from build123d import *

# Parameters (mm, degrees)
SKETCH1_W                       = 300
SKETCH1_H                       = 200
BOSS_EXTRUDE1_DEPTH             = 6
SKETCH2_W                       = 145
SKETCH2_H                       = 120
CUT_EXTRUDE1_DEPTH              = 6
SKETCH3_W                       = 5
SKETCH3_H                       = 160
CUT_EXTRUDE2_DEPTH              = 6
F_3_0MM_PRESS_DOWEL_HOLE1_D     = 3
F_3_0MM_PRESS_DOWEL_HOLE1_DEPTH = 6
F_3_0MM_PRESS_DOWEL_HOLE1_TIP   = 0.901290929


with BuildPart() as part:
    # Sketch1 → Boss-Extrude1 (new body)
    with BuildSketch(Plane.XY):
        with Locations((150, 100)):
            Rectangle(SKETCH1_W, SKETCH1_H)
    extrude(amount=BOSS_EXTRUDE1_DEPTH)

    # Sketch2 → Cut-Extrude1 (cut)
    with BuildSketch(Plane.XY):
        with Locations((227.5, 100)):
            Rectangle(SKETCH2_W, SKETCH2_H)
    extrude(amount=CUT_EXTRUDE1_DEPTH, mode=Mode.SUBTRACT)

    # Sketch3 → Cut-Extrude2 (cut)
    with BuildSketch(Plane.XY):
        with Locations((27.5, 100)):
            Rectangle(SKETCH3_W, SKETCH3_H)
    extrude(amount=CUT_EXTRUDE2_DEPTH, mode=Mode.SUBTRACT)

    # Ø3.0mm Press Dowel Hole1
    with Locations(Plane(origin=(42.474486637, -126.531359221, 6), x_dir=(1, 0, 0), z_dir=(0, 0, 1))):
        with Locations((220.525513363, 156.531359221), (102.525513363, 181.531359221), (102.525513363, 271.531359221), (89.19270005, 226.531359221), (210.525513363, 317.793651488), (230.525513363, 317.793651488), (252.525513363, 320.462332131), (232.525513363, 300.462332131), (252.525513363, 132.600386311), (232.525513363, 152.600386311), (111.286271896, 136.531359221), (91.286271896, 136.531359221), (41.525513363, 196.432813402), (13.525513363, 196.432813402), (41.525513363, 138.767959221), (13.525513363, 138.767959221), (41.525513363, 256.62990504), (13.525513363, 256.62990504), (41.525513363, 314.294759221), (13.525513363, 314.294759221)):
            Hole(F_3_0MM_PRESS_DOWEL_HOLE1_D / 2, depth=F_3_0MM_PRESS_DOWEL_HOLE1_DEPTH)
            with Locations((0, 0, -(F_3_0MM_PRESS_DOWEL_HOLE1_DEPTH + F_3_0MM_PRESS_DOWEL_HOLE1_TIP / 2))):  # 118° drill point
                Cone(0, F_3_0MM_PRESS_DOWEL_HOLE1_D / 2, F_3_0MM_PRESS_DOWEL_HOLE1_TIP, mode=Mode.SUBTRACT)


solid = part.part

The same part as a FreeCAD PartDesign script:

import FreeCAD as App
import Part
import Sketcher
from FreeCAD import Vector
Q = App.Units.Quantity

doc = App.newDocument("Part")
body = doc.addObject("PartDesign::Body", "Body")

sketch1 = body.newObject("Sketcher::SketchObject", "Sketch")
sketch1.AttachmentSupport = (doc.getObject("XY_Plane"), [""])
sketch1.MapMode = "FlatFace"
sketch1.addGeometry(Part.LineSegment(Vector(0, 200, 0), Vector(0, 0, 0)), False)
sketch1.addGeometry(Part.LineSegment(Vector(0, 0, 0), Vector(300, 0, 0)), False)
sketch1.addGeometry(Part.LineSegment(Vector(300, 0, 0), Vector(300, 200, 0)), False)
sketch1.addGeometry(Part.LineSegment(Vector(300, 200, 0), Vector(0, 200, 0)), False)
sketch1.addConstraint(Sketcher.Constraint("Coincident", 0, 2, 1, 1))
sketch1.addConstraint(Sketcher.Constraint("Coincident", 1, 2, 2, 1))
sketch1.addConstraint(Sketcher.Constraint("Coincident", 2, 2, 3, 1))
sketch1.addConstraint(Sketcher.Constraint("Coincident", 3, 2, 0, 1))
sketch1.addConstraint(Sketcher.Constraint("Vertical", 0))
sketch1.addConstraint(Sketcher.Constraint("Horizontal", 1))
sketch1.addConstraint(Sketcher.Constraint("Vertical", 2))
sketch1.addConstraint(Sketcher.Constraint("Horizontal", 3))
sketch1.addConstraint(Sketcher.Constraint("Coincident", 0, 2, -1, 1))
sketch1.addConstraint(Sketcher.Constraint("DistanceX", 1, 1, 1, 2, Q("300 mm")))
sketch1.addConstraint(Sketcher.Constraint("DistanceY", 0, 2, 0, 1, Q("200 mm")))
pad1 = body.newObject("PartDesign::Pad", "Pad")
pad1.Profile = sketch1
pad1.Length = 6

sketch2 = body.newObject("Sketcher::SketchObject", "Sketch001")
sketch2.AttachmentSupport = (doc.getObject("XY_Plane"), [""])
sketch2.MapMode = "FlatFace"
sketch2.addGeometry(Part.LineSegment(Vector(155, 160, 0), Vector(155, 40, 0)), False)
sketch2.addGeometry(Part.LineSegment(Vector(155, 40, 0), Vector(300, 40, 0)), False)
sketch2.addGeometry(Part.LineSegment(Vector(300, 40, 0), Vector(300, 160, 0)), False)
sketch2.addGeometry(Part.LineSegment(Vector(300, 160, 0), Vector(155, 160, 0)), False)
sketch2.addConstraint(Sketcher.Constraint("Coincident", 0, 2, 1, 1))
sketch2.addConstraint(Sketcher.Constraint("Coincident", 1, 2, 2, 1))
sketch2.addConstraint(Sketcher.Constraint("Coincident", 2, 2, 3, 1))
sketch2.addConstraint(Sketcher.Constraint("Coincident", 3, 2, 0, 1))
sketch2.addConstraint(Sketcher.Constraint("Vertical", 0))
sketch2.addConstraint(Sketcher.Constraint("Horizontal", 1))
sketch2.addConstraint(Sketcher.Constraint("Vertical", 2))
sketch2.addConstraint(Sketcher.Constraint("Horizontal", 3))
sketch2.addConstraint(Sketcher.Constraint("DistanceX", 1, 1, 1, 2, Q("145 mm")))
sketch2.addConstraint(Sketcher.Constraint("DistanceY", 0, 2, 0, 1, Q("120 mm")))
sketch2.addConstraint(Sketcher.Constraint("DistanceX", -1, 1, 0, 2, Q("155 mm")))
sketch2.addConstraint(Sketcher.Constraint("DistanceY", -1, 1, 0, 2, Q("40 mm")))
pocket1 = body.newObject("PartDesign::Pocket", "Pocket")
pocket1.Profile = sketch2
pocket1.Length = 6
pocket1.Reversed = True

sketch3 = body.newObject("Sketcher::SketchObject", "Sketch002")
sketch3.AttachmentSupport = (doc.getObject("XY_Plane"), [""])
sketch3.MapMode = "FlatFace"
sketch3.addGeometry(Part.LineSegment(Vector(25, 180, 0), Vector(25, 20, 0)), False)
sketch3.addGeometry(Part.LineSegment(Vector(25, 20, 0), Vector(30, 20, 0)), False)
sketch3.addGeometry(Part.LineSegment(Vector(30, 20, 0), Vector(30, 180, 0)), False)
sketch3.addGeometry(Part.LineSegment(Vector(30, 180, 0), Vector(25, 180, 0)), False)
sketch3.addConstraint(Sketcher.Constraint("Coincident", 0, 2, 1, 1))
sketch3.addConstraint(Sketcher.Constraint("Coincident", 1, 2, 2, 1))
sketch3.addConstraint(Sketcher.Constraint("Coincident", 2, 2, 3, 1))
sketch3.addConstraint(Sketcher.Constraint("Coincident", 3, 2, 0, 1))
sketch3.addConstraint(Sketcher.Constraint("Vertical", 0))
sketch3.addConstraint(Sketcher.Constraint("Horizontal", 1))
sketch3.addConstraint(Sketcher.Constraint("Vertical", 2))
sketch3.addConstraint(Sketcher.Constraint("Horizontal", 3))
sketch3.addConstraint(Sketcher.Constraint("DistanceX", 1, 1, 1, 2, Q("5 mm")))
sketch3.addConstraint(Sketcher.Constraint("DistanceY", 0, 2, 0, 1, Q("160 mm")))
sketch3.addConstraint(Sketcher.Constraint("DistanceX", -1, 1, 0, 2, Q("25 mm")))
sketch3.addConstraint(Sketcher.Constraint("DistanceY", -1, 1, 0, 2, Q("20 mm")))
pocket2 = body.newObject("PartDesign::Pocket", "Pocket001")
pocket2.Profile = sketch3
pocket2.Length = 6
pocket2.Reversed = True

sketch4 = body.newObject("Sketcher::SketchObject", "Sketch003")
sketch4.AttachmentSupport = (doc.getObject("XY_Plane"), [""])
sketch4.MapMode = "FlatFace"
sketch4.AttachmentOffset = App.Placement(Vector(0, 0, 6), App.Rotation())
sketch4.addGeometry(Part.Circle(Vector(263, 30, 0), Vector(0, 0, 1), 1.5), False)
sketch4.addGeometry(Part.Circle(Vector(145, 55, 0), Vector(0, 0, 1), 1.5), False)
sketch4.addGeometry(Part.Circle(Vector(145, 145, 0), Vector(0, 0, 1), 1.5), False)
sketch4.addGeometry(Part.Circle(Vector(131.7, 100, 0), Vector(0, 0, 1), 1.5), False)
sketch4.addGeometry(Part.Circle(Vector(253, 191.3, 0), Vector(0, 0, 1), 1.5), False)
sketch4.addGeometry(Part.Circle(Vector(273, 191.3, 0), Vector(0, 0, 1), 1.5), False)
sketch4.addGeometry(Part.Circle(Vector(295, 193.9, 0), Vector(0, 0, 1), 1.5), False)
sketch4.addGeometry(Part.Circle(Vector(275, 173.9, 0), Vector(0, 0, 1), 1.5), False)
sketch4.addGeometry(Part.Circle(Vector(295, 6.1, 0), Vector(0, 0, 1), 1.5), False)
sketch4.addGeometry(Part.Circle(Vector(275, 26.1, 0), Vector(0, 0, 1), 1.5), False)
sketch4.addGeometry(Part.Circle(Vector(153.8, 10, 0), Vector(0, 0, 1), 1.5), False)
sketch4.addGeometry(Part.Circle(Vector(133.8, 10, 0), Vector(0, 0, 1), 1.5), False)
sketch4.addGeometry(Part.Circle(Vector(84, 69.9, 0), Vector(0, 0, 1), 1.5), False)
sketch4.addGeometry(Part.Circle(Vector(56, 69.9, 0), Vector(0, 0, 1), 1.5), False)
sketch4.addGeometry(Part.Circle(Vector(84, 12.2, 0), Vector(0, 0, 1), 1.5), False)
sketch4.addGeometry(Part.Circle(Vector(56, 12.2, 0), Vector(0, 0, 1), 1.5), False)
sketch4.addGeometry(Part.Circle(Vector(84, 130.1, 0), Vector(0, 0, 1), 1.5), False)
sketch4.addGeometry(Part.Circle(Vector(56, 130.1, 0), Vector(0, 0, 1), 1.5), False)
sketch4.addGeometry(Part.Circle(Vector(84, 187.8, 0), Vector(0, 0, 1), 1.5), False)
sketch4.addGeometry(Part.Circle(Vector(56, 187.8, 0), Vector(0, 0, 1), 1.5), False)
sketch4.addConstraint(Sketcher.Constraint("Equal", 0, 1))
sketch4.addConstraint(Sketcher.Constraint("Equal", 1, 2))
sketch4.addConstraint(Sketcher.Constraint("Equal", 2, 3))
sketch4.addConstraint(Sketcher.Constraint("Equal", 3, 4))
sketch4.addConstraint(Sketcher.Constraint("Equal", 4, 5))
sketch4.addConstraint(Sketcher.Constraint("Equal", 5, 6))
sketch4.addConstraint(Sketcher.Constraint("Equal", 6, 7))
sketch4.addConstraint(Sketcher.Constraint("Equal", 7, 8))
sketch4.addConstraint(Sketcher.Constraint("Equal", 8, 9))
sketch4.addConstraint(Sketcher.Constraint("Equal", 9, 10))
sketch4.addConstraint(Sketcher.Constraint("Equal", 10, 11))
sketch4.addConstraint(Sketcher.Constraint("Equal", 11, 12))
sketch4.addConstraint(Sketcher.Constraint("Equal", 12, 13))
sketch4.addConstraint(Sketcher.Constraint("Equal", 13, 14))
sketch4.addConstraint(Sketcher.Constraint("Equal", 14, 15))
sketch4.addConstraint(Sketcher.Constraint("Equal", 15, 16))
sketch4.addConstraint(Sketcher.Constraint("Equal", 16, 17))
sketch4.addConstraint(Sketcher.Constraint("Equal", 17, 18))
sketch4.addConstraint(Sketcher.Constraint("Equal", 18, 19))
sketch4.addConstraint(Sketcher.Constraint("Horizontal", 4, 3, 5, 3))
sketch4.addConstraint(Sketcher.Constraint("Horizontal", 10, 3, 11, 3))
sketch4.addConstraint(Sketcher.Constraint("Horizontal", 12, 3, 13, 3))
sketch4.addConstraint(Sketcher.Constraint("Horizontal", 14, 3, 15, 3))
sketch4.addConstraint(Sketcher.Constraint("Horizontal", 16, 3, 17, 3))
sketch4.addConstraint(Sketcher.Constraint("Horizontal", 18, 3, 19, 3))
sketch4.addConstraint(Sketcher.Constraint("Vertical", 1, 3, 2, 3))
sketch4.addConstraint(Sketcher.Constraint("Vertical", 6, 3, 8, 3))
sketch4.addConstraint(Sketcher.Constraint("Vertical", 7, 3, 9, 3))
sketch4.addConstraint(Sketcher.Constraint("Vertical", 12, 3, 14, 3))
sketch4.addConstraint(Sketcher.Constraint("Vertical", 13, 3, 15, 3))
sketch4.addConstraint(Sketcher.Constraint("Vertical", 14, 3, 16, 3))
sketch4.addConstraint(Sketcher.Constraint("Vertical", 15, 3, 17, 3))
sketch4.addConstraint(Sketcher.Constraint("Vertical", 16, 3, 18, 3))
sketch4.addConstraint(Sketcher.Constraint("Vertical", 17, 3, 19, 3))
sketch4.addConstraint(Sketcher.Constraint("Diameter", 0, Q("3 mm")))
sketch4.addConstraint(Sketcher.Constraint("DistanceX", -1, 1, 0, 3, Q("263 mm")))
sketch4.addConstraint(Sketcher.Constraint("DistanceY", -1, 1, 0, 3, Q("30 mm")))
sketch4.addConstraint(Sketcher.Constraint("DistanceX", -1, 1, 1, 3, Q("145 mm")))
sketch4.addConstraint(Sketcher.Constraint("DistanceY", -1, 1, 1, 3, Q("55 mm")))
sketch4.addConstraint(Sketcher.Constraint("DistanceY", -1, 1, 2, 3, Q("145 mm")))
sketch4.addConstraint(Sketcher.Constraint("DistanceY", -1, 1, 3, 3, Q("100 mm")))
sketch4.addConstraint(Sketcher.Constraint("DistanceX", -1, 1, 4, 3, Q("253 mm")))
sketch4.addConstraint(Sketcher.Constraint("DistanceX", -1, 1, 5, 3, Q("273 mm")))
sketch4.addConstraint(Sketcher.Constraint("DistanceX", -1, 1, 6, 3, Q("295 mm")))
sketch4.addConstraint(Sketcher.Constraint("DistanceX", -1, 1, 7, 3, Q("275 mm")))
sketch4.addConstraint(Sketcher.Constraint("DistanceY", -1, 1, 10, 3, Q("10 mm")))
sketch4.addConstraint(Sketcher.Constraint("DistanceX", -1, 1, 12, 3, Q("84 mm")))
sketch4.addConstraint(Sketcher.Constraint("DistanceX", -1, 1, 13, 3, Q("56 mm")))
sketch4.addConstraint(Sketcher.Constraint("DistanceY", 7, 3, 6, 3, Q("20 mm")))
sketch4.addConstraint(Sketcher.Constraint("DistanceY", 8, 3, 9, 3, Q("20 mm")))
sketch4.addConstraint(Sketcher.Constraint("DistanceX", 11, 3, 10, 3, Q("20 mm")))
sketch4.addConstraint(Sketcher.Constraint("DistanceY", -1, 1, 14, 3, Q("12.2366 mm")))
sketch4.addConstraint(Sketcher.Constraint("DistanceY", -1, 1, 18, 3, Q("187.7634 mm")))
sketch4.addConstraint(Sketcher.Constraint("DistanceX", -1, 1, 10, 3, Q("153.760759 mm")))
sketch4.addConstraint(Sketcher.Constraint("DistanceY", 5, 3, 6, 3, Q("2.668681 mm")))
sketch4.addConstraint(Sketcher.Constraint("DistanceX", 3, 3, 10, 3, Q("22.093572 mm")))
sketch4.addConstraint(Sketcher.Constraint("DistanceY", 12, 3, 16, 3, Q("60.197092 mm")))
sketch4.addConstraint(Sketcher.Constraint("DistanceY", -1, 1, 4, 3, Q("191.262292 mm")))
sketch4.addConstraint(Sketcher.Constraint("DistanceY", -1, 1, 8, 3, Q("6.069027 mm")))
sketch4.addConstraint(Sketcher.Constraint("DistanceY", -1, 1, 12, 3, Q("69.901454 mm")))
doc.recompute()
hole = body.newObject("PartDesign::Hole", "Hole")
hole.Profile = sketch4
hole.ThreadType = "None"
hole.Diameter = 3
hole.DepthType = "Dimension"
hole.Depth = 6
hole.DrillPoint = "Angled"
hole.DrillPointAngle = 118

doc.recompute()
